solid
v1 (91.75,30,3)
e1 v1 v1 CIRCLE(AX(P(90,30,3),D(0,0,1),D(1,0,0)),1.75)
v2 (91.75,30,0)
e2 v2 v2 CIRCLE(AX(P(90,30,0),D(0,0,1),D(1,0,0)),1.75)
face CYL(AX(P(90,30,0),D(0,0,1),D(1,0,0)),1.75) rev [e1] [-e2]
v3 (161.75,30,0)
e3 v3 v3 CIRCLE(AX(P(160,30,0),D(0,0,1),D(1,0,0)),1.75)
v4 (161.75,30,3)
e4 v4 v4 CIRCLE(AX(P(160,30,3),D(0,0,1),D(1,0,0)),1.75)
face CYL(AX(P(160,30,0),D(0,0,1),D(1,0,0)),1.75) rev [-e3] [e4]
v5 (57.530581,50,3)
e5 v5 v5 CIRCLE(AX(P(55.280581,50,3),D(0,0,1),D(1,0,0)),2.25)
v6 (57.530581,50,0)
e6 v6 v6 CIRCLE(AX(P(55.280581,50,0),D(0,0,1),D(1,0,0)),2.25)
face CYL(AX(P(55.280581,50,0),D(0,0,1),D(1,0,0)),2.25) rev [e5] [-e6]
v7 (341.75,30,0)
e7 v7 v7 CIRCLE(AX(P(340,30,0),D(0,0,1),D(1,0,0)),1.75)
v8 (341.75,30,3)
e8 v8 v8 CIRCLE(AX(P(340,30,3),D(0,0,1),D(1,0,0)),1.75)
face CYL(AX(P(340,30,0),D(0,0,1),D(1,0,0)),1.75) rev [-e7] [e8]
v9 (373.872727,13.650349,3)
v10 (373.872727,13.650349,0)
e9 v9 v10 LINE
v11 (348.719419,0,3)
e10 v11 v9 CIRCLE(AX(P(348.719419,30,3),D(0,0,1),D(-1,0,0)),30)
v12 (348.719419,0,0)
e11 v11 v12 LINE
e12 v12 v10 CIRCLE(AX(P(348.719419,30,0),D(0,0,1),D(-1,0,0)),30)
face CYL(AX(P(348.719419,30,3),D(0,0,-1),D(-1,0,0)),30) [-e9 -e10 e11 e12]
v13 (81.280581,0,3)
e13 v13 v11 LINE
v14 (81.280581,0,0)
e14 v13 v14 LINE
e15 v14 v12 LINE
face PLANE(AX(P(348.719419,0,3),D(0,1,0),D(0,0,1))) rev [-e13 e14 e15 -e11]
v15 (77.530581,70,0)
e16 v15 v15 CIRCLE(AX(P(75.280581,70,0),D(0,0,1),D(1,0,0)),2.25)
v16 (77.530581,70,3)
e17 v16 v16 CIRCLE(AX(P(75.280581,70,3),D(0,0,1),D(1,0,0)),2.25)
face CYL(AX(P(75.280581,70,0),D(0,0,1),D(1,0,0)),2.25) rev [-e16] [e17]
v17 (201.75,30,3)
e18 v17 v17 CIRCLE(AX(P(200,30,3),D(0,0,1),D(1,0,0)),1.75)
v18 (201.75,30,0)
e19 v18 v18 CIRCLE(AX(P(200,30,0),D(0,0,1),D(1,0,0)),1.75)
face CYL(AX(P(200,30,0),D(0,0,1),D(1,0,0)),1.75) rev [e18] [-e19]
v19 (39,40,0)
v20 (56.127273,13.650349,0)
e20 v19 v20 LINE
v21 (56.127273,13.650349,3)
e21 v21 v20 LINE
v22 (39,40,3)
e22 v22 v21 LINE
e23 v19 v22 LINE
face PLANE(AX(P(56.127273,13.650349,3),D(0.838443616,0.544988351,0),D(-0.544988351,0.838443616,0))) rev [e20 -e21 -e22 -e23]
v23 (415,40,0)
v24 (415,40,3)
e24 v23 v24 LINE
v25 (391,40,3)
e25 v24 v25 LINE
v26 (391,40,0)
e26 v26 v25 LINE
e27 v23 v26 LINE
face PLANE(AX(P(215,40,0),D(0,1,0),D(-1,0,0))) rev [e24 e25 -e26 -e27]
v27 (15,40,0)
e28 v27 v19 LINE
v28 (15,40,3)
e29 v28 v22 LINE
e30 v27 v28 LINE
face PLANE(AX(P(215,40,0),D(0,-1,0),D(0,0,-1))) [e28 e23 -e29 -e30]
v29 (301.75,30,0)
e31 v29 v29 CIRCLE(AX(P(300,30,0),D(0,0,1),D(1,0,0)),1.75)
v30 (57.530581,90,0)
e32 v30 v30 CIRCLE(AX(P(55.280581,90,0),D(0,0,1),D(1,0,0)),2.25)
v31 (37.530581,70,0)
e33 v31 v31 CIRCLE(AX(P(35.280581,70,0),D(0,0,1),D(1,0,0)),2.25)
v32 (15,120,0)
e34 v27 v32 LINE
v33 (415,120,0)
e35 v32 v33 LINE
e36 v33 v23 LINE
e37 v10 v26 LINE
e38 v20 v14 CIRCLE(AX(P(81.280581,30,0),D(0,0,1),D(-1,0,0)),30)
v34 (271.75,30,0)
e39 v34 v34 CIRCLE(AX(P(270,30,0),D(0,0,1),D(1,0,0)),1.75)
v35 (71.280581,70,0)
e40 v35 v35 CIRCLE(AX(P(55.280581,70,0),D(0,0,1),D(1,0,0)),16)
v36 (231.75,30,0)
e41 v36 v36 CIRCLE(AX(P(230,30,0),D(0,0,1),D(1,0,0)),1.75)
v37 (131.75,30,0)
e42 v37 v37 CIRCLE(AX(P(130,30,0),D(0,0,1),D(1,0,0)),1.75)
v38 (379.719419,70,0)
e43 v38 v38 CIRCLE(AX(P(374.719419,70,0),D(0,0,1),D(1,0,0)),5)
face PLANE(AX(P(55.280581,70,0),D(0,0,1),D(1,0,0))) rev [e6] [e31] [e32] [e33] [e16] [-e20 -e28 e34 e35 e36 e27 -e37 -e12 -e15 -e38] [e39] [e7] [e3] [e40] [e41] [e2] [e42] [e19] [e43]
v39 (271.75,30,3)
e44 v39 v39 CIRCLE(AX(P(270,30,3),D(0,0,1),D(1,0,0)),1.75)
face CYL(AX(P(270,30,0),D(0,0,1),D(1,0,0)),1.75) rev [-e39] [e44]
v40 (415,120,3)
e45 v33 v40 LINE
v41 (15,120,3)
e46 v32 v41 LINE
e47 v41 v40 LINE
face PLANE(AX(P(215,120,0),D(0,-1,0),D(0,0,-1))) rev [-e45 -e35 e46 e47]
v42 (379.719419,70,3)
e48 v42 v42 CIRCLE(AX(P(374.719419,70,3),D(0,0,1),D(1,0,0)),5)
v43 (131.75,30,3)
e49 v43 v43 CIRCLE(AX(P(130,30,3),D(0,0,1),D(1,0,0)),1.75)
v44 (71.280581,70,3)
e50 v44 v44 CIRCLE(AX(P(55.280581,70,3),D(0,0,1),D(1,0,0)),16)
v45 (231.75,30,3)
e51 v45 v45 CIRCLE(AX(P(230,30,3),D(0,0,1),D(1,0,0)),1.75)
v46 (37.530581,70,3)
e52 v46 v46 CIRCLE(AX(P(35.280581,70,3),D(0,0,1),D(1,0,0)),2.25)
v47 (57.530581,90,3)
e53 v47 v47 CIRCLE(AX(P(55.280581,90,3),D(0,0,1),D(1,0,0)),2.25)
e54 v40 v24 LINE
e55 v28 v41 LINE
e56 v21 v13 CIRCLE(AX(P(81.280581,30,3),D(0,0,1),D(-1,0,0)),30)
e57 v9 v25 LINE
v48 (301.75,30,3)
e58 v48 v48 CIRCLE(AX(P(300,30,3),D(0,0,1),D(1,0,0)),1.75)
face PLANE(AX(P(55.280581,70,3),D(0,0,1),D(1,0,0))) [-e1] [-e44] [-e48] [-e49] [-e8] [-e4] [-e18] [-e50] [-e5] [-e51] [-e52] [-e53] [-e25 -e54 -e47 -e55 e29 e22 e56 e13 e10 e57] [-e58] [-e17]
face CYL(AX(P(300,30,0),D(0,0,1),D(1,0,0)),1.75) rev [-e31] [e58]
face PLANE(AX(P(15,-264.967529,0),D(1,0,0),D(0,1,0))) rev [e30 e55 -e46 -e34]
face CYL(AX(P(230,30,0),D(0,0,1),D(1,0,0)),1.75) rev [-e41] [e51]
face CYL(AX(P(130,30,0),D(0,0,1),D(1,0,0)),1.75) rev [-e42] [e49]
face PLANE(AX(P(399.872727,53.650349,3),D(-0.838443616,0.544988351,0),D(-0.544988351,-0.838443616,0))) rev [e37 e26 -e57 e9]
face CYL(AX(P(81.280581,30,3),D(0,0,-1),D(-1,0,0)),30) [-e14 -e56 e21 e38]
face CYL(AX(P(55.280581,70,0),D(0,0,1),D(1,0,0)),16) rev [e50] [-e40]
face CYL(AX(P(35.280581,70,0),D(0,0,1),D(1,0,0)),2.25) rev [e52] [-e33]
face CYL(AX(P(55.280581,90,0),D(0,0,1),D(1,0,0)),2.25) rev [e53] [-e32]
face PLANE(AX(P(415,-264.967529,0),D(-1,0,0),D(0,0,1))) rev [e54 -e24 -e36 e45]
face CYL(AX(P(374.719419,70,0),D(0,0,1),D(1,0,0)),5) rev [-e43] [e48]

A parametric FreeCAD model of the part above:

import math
import FreeCAD as App
import Part
import Sketcher
from FreeCAD import Vector
Q = App.Units.Quantity

doc = App.newDocument("Part")
body = doc.addObject("PartDesign::Body", "Body")

sketch1 = doc.addObject("Sketcher::SketchObject", "Sketch")
body.addObject(sketch1)
sketch1.AttachmentSupport = (doc.XY_Plane, [""])
sketch1.MapMode = "FlatFace"
sketch1.addGeometry([
    Part.LineSegment(Vector(374.719419, 100, 0), Vector(55.280581, 100, 0)),
    Part.ArcOfCircle(Part.Circle(Vector(55.280581, 70, 0), Vector(0, 0, 1), 30), math.radians(90), math.radians(213.023868)),
    Part.LineSegment(Vector(30.127273, 53.650349, 0), Vector(56.127273, 13.650349, 0)),
    Part.ArcOfCircle(Part.Circle(Vector(81.280581, 30, 0), Vector(0, 0, 1), 30), math.radians(-146.976132), math.radians(-90)),
    Part.LineSegment(Vector(81.280581, 0, 0), Vector(348.719419, 0, 0)),
    Part.ArcOfCircle(Part.Circle(Vector(348.719419, 30, 0), Vector(0, 0, 1), 30), math.radians(-90), math.radians(-33.023868)),
    Part.LineSegment(Vector(373.872727, 13.650349, 0), Vector(399.872727, 53.650349, 0)),
    Part.ArcOfCircle(Part.Circle(Vector(374.719419, 70, 0), Vector(0, 0, 1), 30), math.radians(-33.023868), math.radians(90)),
], False)
sketch1.addConstraint([
    Sketcher.Constraint("Tangent", 0, 2, 1, 1),
    Sketcher.Constraint("Tangent", 1, 2, 2, 1),
    Sketcher.Constraint("Tangent", 2, 2, 3, 1),
    Sketcher.Constraint("Tangent", 3, 2, 4, 1),
    Sketcher.Constraint("Tangent", 4, 2, 5, 1),
    Sketcher.Constraint("Tangent", 5, 2, 6, 1),
    Sketcher.Constraint("Tangent", 6, 2, 7, 1),
    Sketcher.Constraint("Tangent", 7, 2, 0, 1),
    Sketcher.Constraint("Horizontal", 0),
    Sketcher.Constraint("Horizontal", 4),
    Sketcher.Constraint("Equal", 1, 3),
    Sketcher.Constraint("Equal", 3, 5),
    Sketcher.Constraint("Equal", 5, 7),
    Sketcher.Constraint("PointOnObject", 3, 2, -1),
    Sketcher.Constraint("Horizontal", 2, 2, 5, 2),
    Sketcher.Constraint("Radius", 1, Q("30 mm")),
    Sketcher.Constraint("DistanceY", -1, 1, 1, 3, Q("70 mm")),
    Sketcher.Constraint("DistanceX", 1, 3, 3, 3, Q("26 mm")),
    Sketcher.Constraint("DistanceX", 0, 2, 0, 1, Q("319.438837 mm")),
    Sketcher.Constraint("DistanceX", -1, 1, 1, 3, Q("55.280581 mm")),
])
pad1 = doc.addObject("PartDesign::Pad", "Pad")
body.addObject(pad1)
pad1.Profile = sketch1
pad1.Length = 3

sketch2 = doc.addObject("Sketcher::SketchObject", "Sketch001")
body.addObject(sketch2)
sketch2.AttachmentSupport = (doc.XY_Plane, [""])
sketch2.MapMode = "FlatFace"
sketch2.AttachmentOffset = App.Placement(Vector(0, 0, 3), App.Rotation())
sketch2.addGeometry([
    Part.Circle(Vector(55.280581, 70, 0), Vector(0, 0, 1), 16),
    Part.Circle(Vector(55.280581, 90, 0), Vector(0, 0, 1), 2.25),
    Part.Circle(Vector(75.280581, 70, 0), Vector(0, 0, 1), 2.25),
    Part.Circle(Vector(55.280581, 50, 0), Vector(0, 0, 1), 2.25),
    Part.Circle(Vector(35.280581, 70, 0), Vector(0, 0, 1), 2.25),
    Part.Circle(Vector(374.719419, 70, 0), Vector(0, 0, 1), 5),
], False)
sketch2.addConstraint([
    Sketcher.Constraint("Equal", 1, 2),
    Sketcher.Constraint("Equal", 2, 3),
    Sketcher.Constraint("Equal", 3, 4),
    Sketcher.Constraint("Horizontal", 0, 3, 2, 3),
    Sketcher.Constraint("Horizontal", 2, 3, 4, 3),
    Sketcher.Constraint("Horizontal", 4, 3, 5, 3),
    Sketcher.Constraint("Vertical", 0, 3, 1, 3),
    Sketcher.Constraint("Vertical", 1, 3, 3, 3),
    Sketcher.Constraint("Diameter", 0, Q("32 mm")),
    Sketcher.Constraint("Diameter", 5, Q("10 mm")),
    Sketcher.Constraint("Diameter", 1, Q("4.5 mm")),
    Sketcher.Constraint("DistanceY", -1, 1, 0, 3, Q("70 mm")),
    Sketcher.Constraint("DistanceY", -1, 1, 1, 3, Q("90 mm")),
    Sketcher.Constraint("DistanceY", -1, 1, 3, 3, Q("50 mm")),
    Sketcher.Constraint("DistanceX", 0, 3, 2, 3, Q("20 mm")),
    Sketcher.Constraint("DistanceX", 4, 3, 0, 3, Q("20 mm")),
    Sketcher.Constraint("DistanceX", -1, 1, 0, 3, Q("55.280581 mm")),
    Sketcher.Constraint("DistanceX", -1, 1, 5, 3, Q("374.719419 mm")),
])
pocket1 = doc.addObject("PartDesign::Pocket", "Pocket")
body.addObject(pocket1)
pocket1.Profile = sketch2
pocket1.Type = "ThroughAll"

sketch3 = doc.addObject("Sketcher::SketchObject", "Sketch002")
body.addObject(sketch3)
sketch3.AttachmentSupport = (doc.XY_Plane, [""])
sketch3.MapMode = "FlatFace"
sketch3.addGeometry([
    Part.LineSegment(Vector(399.872727, 53.650349, 0), Vector(391, 40, 0)),
    Part.LineSegment(Vector(391, 40, 0), Vector(415, 40, 0)),
    Part.LineSegment(Vector(415, 40, 0), Vector(415, 120, 0)),
    Part.LineSegment(Vector(415, 120, 0), Vector(15, 120, 0)),
    Part.LineSegment(Vector(15, 120, 0), Vector(15, 40, 0)),
    Part.LineSegment(Vector(15, 40, 0), Vector(39, 40, 0)),
    Part.LineSegment(Vector(39, 40, 0), Vector(30.127273, 53.650349, 0)),
    Part.ArcOfCircle(Part.Circle(Vector(55.280581, 70, 0), Vector(0, 0, 1), 30), math.radians(90), math.radians(213.023868)),
    Part.LineSegment(Vector(55.280581, 100, 0), Vector(374.719419, 100, 0)),
    Part.ArcOfCircle(Part.Circle(Vector(374.719419, 70, 0), Vector(0, 0, 1), 30), math.radians(-33.023868), math.radians(90)),
], False)
sketch3.addConstraint([
    Sketcher.Constraint("Coincident", 0, 2, 1, 1),
    Sketcher.Constraint("Coincident", 1, 2, 2, 1),
    Sketcher.Constraint("Coincident", 2, 2, 3, 1),
    Sketcher.Constraint("Coincident", 3, 2, 4, 1),
    Sketcher.Constraint("Coincident", 4, 2, 5, 1),
    Sketcher.Constraint("Coincident", 5, 2, 6, 1),
    Sketcher.Constraint("Tangent", 6, 2, 7, 2),
    Sketcher.Constraint("Tangent", 7, 1, 8, 1),
    Sketcher.Constraint("Tangent", 8, 2, 9, 2),
    Sketcher.Constraint("Tangent", 9, 1, 0, 1),
    Sketcher.Constraint("Horizontal", 1),
    Sketcher.Constraint("Vertical", 2),
    Sketcher.Constraint("Horizontal", 3),
    Sketcher.Constraint("Vertical", 4),
    Sketcher.Constraint("Horizontal", 5),
    Sketcher.Constraint("Horizontal", 8),
    Sketcher.Constraint("Equal", 7, 9),
    Sketcher.Constraint("Horizontal", 1, 2, 4, 2),
    Sketcher.Constraint("Horizontal", 6, 2, 9, 1),
    Sketcher.Constraint("Equal", 1, 5),
    Sketcher.Constraint("Radius", 7, Q("30 mm")),
    Sketcher.Constraint("DistanceX", 1, 1, 1, 2, Q("24 mm")),
    Sketcher.Constraint("DistanceX", 3, 2, 3, 1, Q("400 mm")),
    Sketcher.Constraint("DistanceY", 2, 1, 2, 2, Q("80 mm")),
    Sketcher.Constraint("DistanceY", -1, 1, 7, 3, Q("70 mm")),
    Sketcher.Constraint("DistanceX", -1, 1, 0, 2, Q("391 mm")),
    Sketcher.Constraint("DistanceY", -1, 1, 0, 2, Q("40 mm")),
    Sketcher.Constraint("Distance", 0, Q("16.280581 mm")),
])
pad2 = doc.addObject("PartDesign::Pad", "Pad001")
body.addObject(pad2)
pad2.Profile = sketch3
pad2.Length = 3

sketch4 = doc.addObject("Sketcher::SketchObject", "Sketch003")
body.addObject(sketch4)
sketch4.AttachmentSupport = (doc.XY_Plane, [""])
sketch4.MapMode = "FlatFace"
sketch4.AttachmentOffset = App.Placement(Vector(0, 0, 3), App.Rotation())
sketch4.addGeometry([
    Part.Circle(Vector(130, 30, 0), Vector(0, 0, 1), 1.75),
    Part.Circle(Vector(90, 30, 0), Vector(0, 0, 1), 1.75),
], False)
sketch4.addConstraint([
    Sketcher.Constraint("Equal", 0, 1),
    Sketcher.Constraint("Horizontal", 0, 3, 1, 3),
    Sketcher.Constraint("Diameter", 0, Q("3.5 mm")),
    Sketcher.Constraint("DistanceX", -1, 1, 0, 3, Q("130 mm")),
    Sketcher.Constraint("DistanceY", -1, 1, 0, 3, Q("30 mm")),
    Sketcher.Constraint("DistanceX", -1, 1, 1, 3, Q("90 mm")),
])
pocket2 = doc.addObject("PartDesign::Pocket", "Pocket001")
body.addObject(pocket2)
pocket2.Profile = sketch4
pocket2.Type = "ThroughAll"
doc.recompute()

linearpattern = doc.addObject("PartDesign::LinearPattern", "LinearPattern")
body.addObject(linearpattern)
linearpattern.Originals = [pocket2]
linearpattern.Direction = (doc.X_Axis, [""])
linearpattern.Mode = "offset"
linearpattern.Offset = 70
linearpattern.Occurrences = 4
body.Tip = linearpattern

doc.recompute()
